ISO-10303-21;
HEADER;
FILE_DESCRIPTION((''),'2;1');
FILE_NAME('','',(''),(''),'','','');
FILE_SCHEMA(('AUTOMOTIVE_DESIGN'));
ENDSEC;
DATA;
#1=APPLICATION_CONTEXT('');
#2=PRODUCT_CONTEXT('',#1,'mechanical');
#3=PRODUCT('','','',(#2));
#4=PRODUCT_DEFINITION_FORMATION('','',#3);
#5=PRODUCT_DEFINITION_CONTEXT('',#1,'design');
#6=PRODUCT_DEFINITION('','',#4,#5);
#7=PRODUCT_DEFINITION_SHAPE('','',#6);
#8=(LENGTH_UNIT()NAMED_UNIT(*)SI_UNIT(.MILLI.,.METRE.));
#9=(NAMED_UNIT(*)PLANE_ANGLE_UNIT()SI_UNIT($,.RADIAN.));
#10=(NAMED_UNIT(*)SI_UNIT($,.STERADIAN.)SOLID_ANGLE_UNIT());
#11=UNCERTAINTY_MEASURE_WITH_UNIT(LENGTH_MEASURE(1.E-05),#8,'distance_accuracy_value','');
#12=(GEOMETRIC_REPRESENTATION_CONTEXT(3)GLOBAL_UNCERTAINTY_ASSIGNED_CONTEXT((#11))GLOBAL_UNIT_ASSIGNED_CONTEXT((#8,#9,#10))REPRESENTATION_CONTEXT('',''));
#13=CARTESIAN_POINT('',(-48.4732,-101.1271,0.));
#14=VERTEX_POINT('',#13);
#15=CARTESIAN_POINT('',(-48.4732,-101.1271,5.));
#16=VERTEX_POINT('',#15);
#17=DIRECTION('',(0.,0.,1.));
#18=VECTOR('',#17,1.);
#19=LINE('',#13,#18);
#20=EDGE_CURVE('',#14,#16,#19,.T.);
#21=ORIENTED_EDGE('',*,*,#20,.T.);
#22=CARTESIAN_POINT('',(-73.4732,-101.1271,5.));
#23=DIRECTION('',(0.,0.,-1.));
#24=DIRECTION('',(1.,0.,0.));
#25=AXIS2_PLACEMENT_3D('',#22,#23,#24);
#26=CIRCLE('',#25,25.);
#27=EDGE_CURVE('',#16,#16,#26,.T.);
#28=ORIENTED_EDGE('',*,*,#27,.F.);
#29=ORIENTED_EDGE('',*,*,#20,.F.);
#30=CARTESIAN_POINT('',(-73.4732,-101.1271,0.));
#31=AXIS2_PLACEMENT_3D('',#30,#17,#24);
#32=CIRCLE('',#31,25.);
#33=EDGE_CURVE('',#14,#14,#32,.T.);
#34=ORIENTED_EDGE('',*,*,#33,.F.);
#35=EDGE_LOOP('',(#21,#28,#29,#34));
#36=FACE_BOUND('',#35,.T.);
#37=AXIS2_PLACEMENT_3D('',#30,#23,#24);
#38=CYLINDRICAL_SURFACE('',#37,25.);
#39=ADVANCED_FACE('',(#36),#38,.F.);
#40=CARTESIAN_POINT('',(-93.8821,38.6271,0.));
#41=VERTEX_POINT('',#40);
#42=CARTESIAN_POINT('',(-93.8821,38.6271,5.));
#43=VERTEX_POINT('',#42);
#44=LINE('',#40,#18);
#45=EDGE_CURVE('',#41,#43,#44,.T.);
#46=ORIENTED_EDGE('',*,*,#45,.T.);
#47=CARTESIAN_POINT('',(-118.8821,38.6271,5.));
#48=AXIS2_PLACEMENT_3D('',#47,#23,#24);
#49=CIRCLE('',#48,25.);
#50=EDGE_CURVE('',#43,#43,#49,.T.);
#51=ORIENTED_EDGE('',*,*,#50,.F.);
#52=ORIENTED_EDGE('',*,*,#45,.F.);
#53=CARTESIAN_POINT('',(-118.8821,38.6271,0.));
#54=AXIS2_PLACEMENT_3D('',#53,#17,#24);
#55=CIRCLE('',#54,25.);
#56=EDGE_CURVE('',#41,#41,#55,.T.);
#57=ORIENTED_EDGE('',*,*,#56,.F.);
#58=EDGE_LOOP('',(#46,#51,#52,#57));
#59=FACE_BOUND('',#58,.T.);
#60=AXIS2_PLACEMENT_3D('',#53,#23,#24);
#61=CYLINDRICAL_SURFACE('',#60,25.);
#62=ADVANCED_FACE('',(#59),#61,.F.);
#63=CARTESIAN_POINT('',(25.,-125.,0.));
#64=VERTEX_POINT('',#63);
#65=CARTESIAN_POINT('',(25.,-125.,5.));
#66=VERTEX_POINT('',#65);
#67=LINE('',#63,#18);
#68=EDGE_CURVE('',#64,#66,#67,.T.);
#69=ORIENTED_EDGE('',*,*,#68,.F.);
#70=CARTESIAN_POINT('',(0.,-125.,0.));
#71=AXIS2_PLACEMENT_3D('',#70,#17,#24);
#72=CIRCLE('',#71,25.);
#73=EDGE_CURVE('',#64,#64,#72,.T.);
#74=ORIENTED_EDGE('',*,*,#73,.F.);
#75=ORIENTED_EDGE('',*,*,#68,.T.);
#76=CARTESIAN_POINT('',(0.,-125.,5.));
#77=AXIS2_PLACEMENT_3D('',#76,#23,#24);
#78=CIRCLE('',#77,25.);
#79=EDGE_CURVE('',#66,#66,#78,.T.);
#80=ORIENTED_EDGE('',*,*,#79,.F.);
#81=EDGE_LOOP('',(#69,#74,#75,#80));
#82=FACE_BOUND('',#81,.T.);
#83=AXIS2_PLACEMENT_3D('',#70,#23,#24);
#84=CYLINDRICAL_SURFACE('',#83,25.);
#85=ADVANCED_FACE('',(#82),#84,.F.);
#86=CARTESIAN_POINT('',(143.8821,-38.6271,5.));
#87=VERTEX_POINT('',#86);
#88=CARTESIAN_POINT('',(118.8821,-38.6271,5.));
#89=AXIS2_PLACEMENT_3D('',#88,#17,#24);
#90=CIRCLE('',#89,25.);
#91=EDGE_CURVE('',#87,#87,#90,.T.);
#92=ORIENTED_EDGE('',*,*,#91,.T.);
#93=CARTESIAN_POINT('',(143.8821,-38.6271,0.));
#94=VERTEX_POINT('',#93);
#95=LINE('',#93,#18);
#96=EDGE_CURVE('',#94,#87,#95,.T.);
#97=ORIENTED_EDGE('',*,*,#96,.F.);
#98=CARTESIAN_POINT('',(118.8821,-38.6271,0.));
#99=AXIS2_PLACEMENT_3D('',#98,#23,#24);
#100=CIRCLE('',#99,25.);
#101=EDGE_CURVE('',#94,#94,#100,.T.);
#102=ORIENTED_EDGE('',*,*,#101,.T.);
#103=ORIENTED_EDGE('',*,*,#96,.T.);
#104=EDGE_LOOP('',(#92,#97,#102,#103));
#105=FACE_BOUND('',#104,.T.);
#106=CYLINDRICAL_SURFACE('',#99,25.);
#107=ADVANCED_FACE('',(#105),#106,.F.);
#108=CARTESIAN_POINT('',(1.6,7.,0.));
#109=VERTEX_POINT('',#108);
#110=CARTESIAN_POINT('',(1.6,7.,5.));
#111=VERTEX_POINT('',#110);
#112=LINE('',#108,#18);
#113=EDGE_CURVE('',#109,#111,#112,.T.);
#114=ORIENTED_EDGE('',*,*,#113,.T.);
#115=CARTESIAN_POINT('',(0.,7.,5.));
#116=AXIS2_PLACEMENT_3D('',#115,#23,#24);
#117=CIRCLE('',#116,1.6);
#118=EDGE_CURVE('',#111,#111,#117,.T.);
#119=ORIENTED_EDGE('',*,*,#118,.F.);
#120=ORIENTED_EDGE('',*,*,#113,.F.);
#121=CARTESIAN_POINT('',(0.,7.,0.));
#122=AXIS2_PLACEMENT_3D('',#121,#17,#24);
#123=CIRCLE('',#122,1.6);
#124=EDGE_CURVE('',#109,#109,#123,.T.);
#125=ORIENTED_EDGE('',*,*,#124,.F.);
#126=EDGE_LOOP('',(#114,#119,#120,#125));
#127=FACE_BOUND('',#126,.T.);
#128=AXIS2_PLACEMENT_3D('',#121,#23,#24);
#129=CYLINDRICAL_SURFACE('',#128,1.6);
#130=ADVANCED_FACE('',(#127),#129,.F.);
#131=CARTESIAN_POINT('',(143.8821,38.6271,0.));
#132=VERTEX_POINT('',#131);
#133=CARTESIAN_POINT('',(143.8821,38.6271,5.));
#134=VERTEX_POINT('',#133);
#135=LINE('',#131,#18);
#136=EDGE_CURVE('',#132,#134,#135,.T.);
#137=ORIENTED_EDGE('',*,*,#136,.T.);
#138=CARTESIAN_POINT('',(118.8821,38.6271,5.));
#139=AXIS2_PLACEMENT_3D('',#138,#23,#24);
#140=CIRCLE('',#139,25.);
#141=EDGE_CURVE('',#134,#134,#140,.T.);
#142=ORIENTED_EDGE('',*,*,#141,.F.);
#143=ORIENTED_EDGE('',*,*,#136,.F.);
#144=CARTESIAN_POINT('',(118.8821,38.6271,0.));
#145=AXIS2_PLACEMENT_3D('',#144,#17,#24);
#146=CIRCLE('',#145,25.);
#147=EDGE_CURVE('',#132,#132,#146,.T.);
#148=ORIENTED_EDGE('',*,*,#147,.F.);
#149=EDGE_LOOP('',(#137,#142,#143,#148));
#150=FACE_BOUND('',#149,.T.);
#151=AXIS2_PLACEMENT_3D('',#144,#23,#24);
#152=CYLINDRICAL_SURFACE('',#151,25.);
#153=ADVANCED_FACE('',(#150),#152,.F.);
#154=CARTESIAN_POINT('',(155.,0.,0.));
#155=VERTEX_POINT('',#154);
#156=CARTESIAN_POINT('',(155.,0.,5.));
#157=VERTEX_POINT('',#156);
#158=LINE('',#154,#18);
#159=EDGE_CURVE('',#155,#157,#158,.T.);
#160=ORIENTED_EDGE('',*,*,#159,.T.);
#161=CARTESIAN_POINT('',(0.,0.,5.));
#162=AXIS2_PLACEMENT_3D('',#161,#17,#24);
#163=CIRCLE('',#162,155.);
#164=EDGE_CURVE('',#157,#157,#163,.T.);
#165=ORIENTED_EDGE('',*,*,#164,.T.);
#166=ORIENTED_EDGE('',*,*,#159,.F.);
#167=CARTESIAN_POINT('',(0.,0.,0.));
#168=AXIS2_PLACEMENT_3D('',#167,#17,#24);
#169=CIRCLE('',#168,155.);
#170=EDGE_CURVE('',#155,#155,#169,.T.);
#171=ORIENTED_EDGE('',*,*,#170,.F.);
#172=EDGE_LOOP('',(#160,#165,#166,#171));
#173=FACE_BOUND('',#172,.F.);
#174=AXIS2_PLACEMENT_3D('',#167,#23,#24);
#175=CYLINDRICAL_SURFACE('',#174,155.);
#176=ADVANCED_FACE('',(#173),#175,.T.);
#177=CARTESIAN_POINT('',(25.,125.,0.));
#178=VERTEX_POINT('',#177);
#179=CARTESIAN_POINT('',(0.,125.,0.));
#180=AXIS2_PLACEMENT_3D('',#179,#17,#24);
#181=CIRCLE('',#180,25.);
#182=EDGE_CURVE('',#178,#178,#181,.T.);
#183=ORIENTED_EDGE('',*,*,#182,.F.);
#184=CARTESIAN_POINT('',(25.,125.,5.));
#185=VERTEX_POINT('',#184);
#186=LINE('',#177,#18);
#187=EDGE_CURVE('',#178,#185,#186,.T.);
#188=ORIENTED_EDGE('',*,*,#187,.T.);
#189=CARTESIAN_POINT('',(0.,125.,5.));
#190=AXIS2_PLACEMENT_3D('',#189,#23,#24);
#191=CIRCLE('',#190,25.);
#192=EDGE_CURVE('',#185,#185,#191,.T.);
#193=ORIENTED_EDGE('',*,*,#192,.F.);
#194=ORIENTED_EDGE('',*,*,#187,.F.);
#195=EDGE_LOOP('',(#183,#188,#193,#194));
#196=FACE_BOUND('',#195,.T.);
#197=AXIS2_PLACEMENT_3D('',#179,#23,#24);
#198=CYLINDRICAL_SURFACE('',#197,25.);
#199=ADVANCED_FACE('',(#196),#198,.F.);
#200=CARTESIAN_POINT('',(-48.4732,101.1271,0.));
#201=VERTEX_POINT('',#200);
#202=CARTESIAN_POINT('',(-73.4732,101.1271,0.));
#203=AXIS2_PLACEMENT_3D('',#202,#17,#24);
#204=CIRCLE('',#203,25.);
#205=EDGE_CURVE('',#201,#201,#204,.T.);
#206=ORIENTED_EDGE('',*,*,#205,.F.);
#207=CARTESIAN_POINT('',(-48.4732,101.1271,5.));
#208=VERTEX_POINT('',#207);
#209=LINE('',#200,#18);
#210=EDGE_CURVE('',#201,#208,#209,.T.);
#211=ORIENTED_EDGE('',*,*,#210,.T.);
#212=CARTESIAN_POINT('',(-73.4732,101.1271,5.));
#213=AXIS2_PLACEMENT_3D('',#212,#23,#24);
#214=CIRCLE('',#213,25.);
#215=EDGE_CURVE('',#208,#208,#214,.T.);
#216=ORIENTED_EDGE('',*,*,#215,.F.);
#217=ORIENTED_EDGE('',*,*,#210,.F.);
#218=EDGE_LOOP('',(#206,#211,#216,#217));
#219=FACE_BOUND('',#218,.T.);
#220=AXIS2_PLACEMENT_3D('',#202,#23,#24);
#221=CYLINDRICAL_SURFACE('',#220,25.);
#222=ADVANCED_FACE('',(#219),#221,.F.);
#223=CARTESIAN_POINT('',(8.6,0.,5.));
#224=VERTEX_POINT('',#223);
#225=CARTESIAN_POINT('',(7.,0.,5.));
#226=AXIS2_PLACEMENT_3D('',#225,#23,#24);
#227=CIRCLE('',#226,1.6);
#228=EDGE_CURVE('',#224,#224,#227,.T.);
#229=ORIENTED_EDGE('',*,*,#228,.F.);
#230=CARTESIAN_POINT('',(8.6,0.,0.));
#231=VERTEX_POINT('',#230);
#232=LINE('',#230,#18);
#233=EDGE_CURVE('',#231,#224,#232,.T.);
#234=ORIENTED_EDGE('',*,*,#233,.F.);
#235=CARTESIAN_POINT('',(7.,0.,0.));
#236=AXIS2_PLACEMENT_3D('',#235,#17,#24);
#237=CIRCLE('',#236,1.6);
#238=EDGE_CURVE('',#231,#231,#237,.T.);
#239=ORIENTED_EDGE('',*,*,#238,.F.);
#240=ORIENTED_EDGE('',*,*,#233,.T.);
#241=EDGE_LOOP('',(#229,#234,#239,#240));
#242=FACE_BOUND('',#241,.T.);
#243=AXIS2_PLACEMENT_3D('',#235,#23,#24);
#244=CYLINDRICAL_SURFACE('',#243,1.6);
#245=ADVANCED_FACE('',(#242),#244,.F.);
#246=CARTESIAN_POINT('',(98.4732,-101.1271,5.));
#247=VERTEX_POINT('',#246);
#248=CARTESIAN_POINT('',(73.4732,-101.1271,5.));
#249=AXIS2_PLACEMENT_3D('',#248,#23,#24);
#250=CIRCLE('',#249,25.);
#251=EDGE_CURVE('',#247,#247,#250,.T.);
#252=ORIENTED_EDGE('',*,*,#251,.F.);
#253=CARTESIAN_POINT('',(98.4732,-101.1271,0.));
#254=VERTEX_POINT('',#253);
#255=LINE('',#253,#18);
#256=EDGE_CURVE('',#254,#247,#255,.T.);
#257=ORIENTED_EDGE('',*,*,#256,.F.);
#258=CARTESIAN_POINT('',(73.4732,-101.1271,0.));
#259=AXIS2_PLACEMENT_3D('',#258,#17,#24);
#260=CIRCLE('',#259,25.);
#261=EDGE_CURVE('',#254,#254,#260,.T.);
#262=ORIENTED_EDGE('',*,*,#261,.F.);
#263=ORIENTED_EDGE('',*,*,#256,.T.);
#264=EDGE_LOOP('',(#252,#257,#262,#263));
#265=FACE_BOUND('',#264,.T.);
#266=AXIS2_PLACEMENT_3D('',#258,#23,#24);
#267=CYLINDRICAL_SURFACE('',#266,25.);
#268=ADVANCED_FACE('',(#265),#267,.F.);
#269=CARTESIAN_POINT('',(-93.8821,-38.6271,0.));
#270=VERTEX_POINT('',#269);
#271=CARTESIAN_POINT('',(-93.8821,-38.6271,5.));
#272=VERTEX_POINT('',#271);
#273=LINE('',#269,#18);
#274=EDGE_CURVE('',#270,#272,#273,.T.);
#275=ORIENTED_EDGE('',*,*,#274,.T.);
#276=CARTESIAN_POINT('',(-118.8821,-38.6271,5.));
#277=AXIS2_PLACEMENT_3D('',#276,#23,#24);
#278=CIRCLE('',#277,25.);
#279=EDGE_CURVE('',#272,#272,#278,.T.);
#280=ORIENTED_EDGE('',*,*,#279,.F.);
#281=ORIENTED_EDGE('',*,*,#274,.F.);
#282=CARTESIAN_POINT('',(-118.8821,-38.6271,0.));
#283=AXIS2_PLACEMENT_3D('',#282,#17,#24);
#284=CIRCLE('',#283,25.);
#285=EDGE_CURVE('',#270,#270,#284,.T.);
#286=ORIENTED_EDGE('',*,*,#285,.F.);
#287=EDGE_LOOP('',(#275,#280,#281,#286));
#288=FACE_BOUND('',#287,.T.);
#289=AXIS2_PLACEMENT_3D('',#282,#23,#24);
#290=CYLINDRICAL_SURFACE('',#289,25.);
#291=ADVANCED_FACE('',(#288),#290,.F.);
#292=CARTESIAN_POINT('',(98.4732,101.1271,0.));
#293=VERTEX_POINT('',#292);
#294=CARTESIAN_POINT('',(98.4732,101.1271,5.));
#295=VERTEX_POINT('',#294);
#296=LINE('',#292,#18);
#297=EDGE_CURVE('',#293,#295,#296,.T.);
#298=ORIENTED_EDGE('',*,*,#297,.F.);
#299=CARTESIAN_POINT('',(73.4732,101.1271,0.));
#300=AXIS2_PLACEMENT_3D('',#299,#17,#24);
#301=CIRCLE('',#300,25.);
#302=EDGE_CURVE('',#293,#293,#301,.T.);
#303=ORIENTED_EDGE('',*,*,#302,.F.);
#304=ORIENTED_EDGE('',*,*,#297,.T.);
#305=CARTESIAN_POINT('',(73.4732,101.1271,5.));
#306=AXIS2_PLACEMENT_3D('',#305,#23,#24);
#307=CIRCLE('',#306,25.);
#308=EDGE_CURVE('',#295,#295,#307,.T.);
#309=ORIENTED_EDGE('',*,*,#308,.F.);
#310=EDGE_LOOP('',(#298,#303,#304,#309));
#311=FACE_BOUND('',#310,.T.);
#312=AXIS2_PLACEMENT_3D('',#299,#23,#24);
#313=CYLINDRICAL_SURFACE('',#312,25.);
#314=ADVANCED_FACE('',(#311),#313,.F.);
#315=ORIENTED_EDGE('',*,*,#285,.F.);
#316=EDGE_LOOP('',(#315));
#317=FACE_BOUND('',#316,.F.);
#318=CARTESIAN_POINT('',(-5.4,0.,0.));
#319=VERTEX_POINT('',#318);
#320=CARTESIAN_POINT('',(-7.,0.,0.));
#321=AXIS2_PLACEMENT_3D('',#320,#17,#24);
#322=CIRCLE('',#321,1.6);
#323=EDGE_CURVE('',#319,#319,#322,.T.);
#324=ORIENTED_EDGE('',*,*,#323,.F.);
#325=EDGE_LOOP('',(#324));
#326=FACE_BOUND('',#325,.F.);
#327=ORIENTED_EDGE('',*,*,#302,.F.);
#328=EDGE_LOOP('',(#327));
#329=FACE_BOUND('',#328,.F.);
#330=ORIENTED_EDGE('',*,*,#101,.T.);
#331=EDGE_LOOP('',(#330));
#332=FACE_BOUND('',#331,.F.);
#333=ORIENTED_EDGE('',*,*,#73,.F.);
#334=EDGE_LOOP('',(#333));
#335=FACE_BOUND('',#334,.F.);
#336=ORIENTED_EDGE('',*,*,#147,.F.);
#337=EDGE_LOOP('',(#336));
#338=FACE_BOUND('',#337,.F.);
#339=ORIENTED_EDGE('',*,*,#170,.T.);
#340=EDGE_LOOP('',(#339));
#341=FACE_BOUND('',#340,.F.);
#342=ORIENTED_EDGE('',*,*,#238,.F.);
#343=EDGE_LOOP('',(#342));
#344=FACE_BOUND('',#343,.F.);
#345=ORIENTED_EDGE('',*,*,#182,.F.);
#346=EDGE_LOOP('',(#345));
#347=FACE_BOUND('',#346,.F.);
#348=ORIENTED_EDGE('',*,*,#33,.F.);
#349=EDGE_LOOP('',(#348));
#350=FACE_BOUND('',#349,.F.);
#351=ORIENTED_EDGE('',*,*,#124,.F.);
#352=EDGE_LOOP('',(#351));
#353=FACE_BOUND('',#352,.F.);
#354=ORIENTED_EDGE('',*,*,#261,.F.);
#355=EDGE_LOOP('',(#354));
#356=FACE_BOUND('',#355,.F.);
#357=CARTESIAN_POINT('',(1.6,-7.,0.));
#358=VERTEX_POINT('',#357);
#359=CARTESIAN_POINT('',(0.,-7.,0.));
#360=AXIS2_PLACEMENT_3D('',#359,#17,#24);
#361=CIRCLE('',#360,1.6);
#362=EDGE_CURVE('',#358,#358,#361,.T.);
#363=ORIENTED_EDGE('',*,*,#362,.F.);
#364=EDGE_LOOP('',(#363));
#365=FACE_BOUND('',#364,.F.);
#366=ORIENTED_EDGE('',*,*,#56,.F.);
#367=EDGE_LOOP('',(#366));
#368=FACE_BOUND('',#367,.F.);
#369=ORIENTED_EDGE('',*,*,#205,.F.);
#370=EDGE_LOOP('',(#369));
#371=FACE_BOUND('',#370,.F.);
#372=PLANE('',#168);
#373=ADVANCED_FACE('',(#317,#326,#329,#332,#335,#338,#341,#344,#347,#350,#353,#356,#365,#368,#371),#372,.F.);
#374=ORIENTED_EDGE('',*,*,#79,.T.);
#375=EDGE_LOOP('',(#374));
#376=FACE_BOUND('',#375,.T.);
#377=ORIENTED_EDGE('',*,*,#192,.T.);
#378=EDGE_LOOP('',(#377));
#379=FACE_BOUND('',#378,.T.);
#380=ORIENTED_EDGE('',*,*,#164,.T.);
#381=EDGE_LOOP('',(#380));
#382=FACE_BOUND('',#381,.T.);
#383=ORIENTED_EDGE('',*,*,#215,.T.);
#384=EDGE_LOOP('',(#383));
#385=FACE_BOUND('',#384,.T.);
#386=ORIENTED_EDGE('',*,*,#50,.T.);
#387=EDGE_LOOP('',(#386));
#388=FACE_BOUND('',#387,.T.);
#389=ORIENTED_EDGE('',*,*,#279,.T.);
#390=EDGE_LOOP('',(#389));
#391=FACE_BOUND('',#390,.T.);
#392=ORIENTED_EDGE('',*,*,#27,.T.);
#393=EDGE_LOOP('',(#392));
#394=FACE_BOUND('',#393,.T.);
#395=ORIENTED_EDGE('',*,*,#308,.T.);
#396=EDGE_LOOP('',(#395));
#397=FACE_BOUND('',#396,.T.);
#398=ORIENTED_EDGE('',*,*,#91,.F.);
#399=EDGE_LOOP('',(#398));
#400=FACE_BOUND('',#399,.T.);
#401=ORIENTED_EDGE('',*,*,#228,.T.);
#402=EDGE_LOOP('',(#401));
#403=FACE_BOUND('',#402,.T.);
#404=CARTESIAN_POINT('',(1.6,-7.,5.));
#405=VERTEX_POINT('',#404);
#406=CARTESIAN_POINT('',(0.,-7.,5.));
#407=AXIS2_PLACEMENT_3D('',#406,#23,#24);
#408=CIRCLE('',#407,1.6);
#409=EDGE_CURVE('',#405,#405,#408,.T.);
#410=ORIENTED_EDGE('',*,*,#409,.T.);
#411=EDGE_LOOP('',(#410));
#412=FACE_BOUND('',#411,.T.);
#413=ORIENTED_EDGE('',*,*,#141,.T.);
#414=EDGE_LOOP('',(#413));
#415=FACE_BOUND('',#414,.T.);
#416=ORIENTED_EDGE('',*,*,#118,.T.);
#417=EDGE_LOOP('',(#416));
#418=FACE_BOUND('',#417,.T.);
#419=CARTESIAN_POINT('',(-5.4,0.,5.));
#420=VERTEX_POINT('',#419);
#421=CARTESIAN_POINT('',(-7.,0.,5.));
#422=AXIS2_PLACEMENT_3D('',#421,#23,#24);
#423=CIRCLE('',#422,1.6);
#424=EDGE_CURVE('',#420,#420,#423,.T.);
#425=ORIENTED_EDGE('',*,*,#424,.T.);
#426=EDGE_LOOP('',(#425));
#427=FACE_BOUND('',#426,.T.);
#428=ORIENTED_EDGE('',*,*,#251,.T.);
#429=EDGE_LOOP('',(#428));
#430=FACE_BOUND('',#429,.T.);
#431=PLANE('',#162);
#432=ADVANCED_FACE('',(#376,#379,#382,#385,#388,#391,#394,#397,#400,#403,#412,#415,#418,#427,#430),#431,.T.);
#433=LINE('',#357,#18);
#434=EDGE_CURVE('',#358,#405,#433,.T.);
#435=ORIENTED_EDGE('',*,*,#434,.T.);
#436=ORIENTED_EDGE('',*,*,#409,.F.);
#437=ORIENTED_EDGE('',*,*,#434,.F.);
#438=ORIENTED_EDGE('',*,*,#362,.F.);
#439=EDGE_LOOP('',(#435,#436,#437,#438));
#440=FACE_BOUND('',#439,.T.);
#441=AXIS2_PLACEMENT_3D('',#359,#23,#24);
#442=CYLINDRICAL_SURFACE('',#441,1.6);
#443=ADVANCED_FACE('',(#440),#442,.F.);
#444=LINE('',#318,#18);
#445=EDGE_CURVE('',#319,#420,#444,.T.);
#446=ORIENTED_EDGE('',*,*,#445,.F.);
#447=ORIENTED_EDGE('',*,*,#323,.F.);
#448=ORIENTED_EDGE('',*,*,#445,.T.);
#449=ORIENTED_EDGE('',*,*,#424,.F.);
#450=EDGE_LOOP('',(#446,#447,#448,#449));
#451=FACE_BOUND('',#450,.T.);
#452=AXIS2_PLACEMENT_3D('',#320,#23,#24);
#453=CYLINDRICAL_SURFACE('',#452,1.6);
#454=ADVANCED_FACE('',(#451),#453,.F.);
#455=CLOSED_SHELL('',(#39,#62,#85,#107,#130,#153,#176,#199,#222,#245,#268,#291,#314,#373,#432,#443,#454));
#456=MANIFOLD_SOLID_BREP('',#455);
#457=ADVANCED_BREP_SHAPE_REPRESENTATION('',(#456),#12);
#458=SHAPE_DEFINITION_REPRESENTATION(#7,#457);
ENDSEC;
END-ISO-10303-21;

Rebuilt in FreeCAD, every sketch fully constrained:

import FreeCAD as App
import Part
import Sketcher
Q = App.Units.Quantity

doc = App.newDocument("Part")
params = doc.addObject("Spreadsheet::Sheet", "Params")
for row, (alias, value) in enumerate([
    ("sketch1_diameter", "310 mm"),
    ("sketch1_diameter2", "50 mm"),
    ("pad1_length", "5 mm"),
    ("sketch2_diameter", "3.2 mm"),
    ("pocket1_length", "5 mm"),
], start=1):
    params.set(f"A{row}", alias)
    params.set(f"B{row}", "=" + value)
    params.setAlias(f"B{row}", alias)

body = doc.addObject("PartDesign::Body", "Body")

sketch1 = body.newObject("Sketcher::SketchObject", "Sketch")
sketch1.AttachmentSupport = (doc.getObject("XY_Plane"), [""])
sketch1.MapMode = "FlatFace"
sketch1.addGeometry(Part.Circle(App.Vector(0, 0, 0), App.Vector(0, 0, 1), 155), False)
sketch1.addGeometry(Part.Circle(App.Vector(119, -39, 0), App.Vector(0, 0, 1), 25), False)
sketch1.addGeometry(Part.Circle(App.Vector(119, 39, 0), App.Vector(0, 0, 1), 25), False)
sketch1.addGeometry(Part.Circle(App.Vector(73, -101, 0), App.Vector(0, 0, 1), 25), False)
sketch1.addGeometry(Part.Circle(App.Vector(73, 101, 0), App.Vector(0, 0, 1), 25), False)
sketch1.addGeometry(Part.Circle(App.Vector(0, 125, 0), App.Vector(0, 0, 1), 25), False)
sketch1.addGeometry(Part.Circle(App.Vector(-73, 101, 0), App.Vector(0, 0, 1), 25), False)
sketch1.addGeometry(Part.Circle(App.Vector(-119, 39, 0), App.Vector(0, 0, 1), 25), False)
sketch1.addGeometry(Part.Circle(App.Vector(-119, -39, 0), App.Vector(0, 0, 1), 25), False)
sketch1.addGeometry(Part.Circle(App.Vector(-73, -101, 0), App.Vector(0, 0, 1), 25), False)
sketch1.addGeometry(Part.Circle(App.Vector(0, -125, 0), App.Vector(0, 0, 1), 25), False)
sketch1.addConstraint(Sketcher.Constraint("Coincident", 0, 3, -1, 1))
sketch1.addConstraint(Sketcher.Constraint("Equal", 1, 2))
sketch1.addConstraint(Sketcher.Constraint("Equal", 2, 3))
sketch1.addConstraint(Sketcher.Constraint("Equal", 3, 4))
sketch1.addConstraint(Sketcher.Constraint("Equal", 4, 5))
sketch1.addConstraint(Sketcher.Constraint("Equal", 5, 6))
sketch1.addConstraint(Sketcher.Constraint("Equal", 6, 7))
sketch1.addConstraint(Sketcher.Constraint("Equal", 7, 8))
sketch1.addConstraint(Sketcher.Constraint("Equal", 8, 9))
sketch1.addConstraint(Sketcher.Constraint("Equal", 9, 10))
sketch1.addConstraint(Sketcher.Constraint("Symmetric", 3, 3, 6, 3, -1, 1))
sketch1.addConstraint(Sketcher.Constraint("Symmetric", 1, 3, 7, 3, -1, 1))
sketch1.addConstraint(Sketcher.Constraint("Symmetric", 2, 3, 8, 3, -1, 1))
sketch1.addConstraint(Sketcher.Constraint("Symmetric", 4, 3, 9, 3, -1, 1))
sketch1.addConstraint(Sketcher.Constraint("Symmetric", 5, 3, 10, 3, -1, 1))
sketch1.addConstraint(Sketcher.Constraint("Symmetric", 4, 3, 6, 3, -2))
sketch1.addConstraint(Sketcher.Constraint("Symmetric", 2, 3, 7, 3, -2))
sketch1.addConstraint(Sketcher.Constraint("PointOnObject", 5, 3, -2))
sketch1.addConstraint(Sketcher.Constraint("Diameter", 0, Q("310 mm")))
sketch1.addConstraint(Sketcher.Constraint("Diameter", 1, Q("50 mm")))
sketch1.addConstraint(Sketcher.Constraint("DistanceY", -1, 1, 5, 3, Q("125 mm")))
sketch1.addConstraint(Sketcher.Constraint("DistanceY", 3, 3, 1, 3, Q("62.5 mm")))
sketch1.addConstraint(Sketcher.Constraint("DistanceX", -1, 1, 1, 3, Q("118.882 mm")))
sketch1.addConstraint(Sketcher.Constraint("DistanceY", 1, 3, -1, 1, Q("38.627 mm")))
sketch1.addConstraint(Sketcher.Constraint("DistanceX", 3, 3, 1, 3, Q("45.409 mm")))
sketch1.setExpression("Constraints[18]", "Params.sketch1_diameter")
sketch1.setExpression("Constraints[19]", "Params.sketch1_diameter2")
pad1 = body.newObject("PartDesign::Pad", "Pad")
pad1.Profile = sketch1
pad1.setExpression("Length", "Params.pad1_length")

sketch2 = body.newObject("Sketcher::SketchObject", "Sketch001")
sketch2.AttachmentSupport = (doc.getObject("XY_Plane"), [""])
sketch2.MapMode = "FlatFace"
sketch2.addGeometry(Part.Circle(App.Vector(7, 0, 0), App.Vector(0, 0, 1), 1.6), False)
sketch2.addGeometry(Part.Circle(App.Vector(0, 7, 0), App.Vector(0, 0, 1), 1.6), False)
sketch2.addGeometry(Part.Circle(App.Vector(0, -7, 0), App.Vector(0, 0, 1), 1.6), False)
sketch2.addGeometry(Part.Circle(App.Vector(-7, 0, 0), App.Vector(0, 0, 1), 1.6), False)
sketch2.addConstraint(Sketcher.Constraint("Equal", 0, 1))
sketch2.addConstraint(Sketcher.Constraint("Equal", 1, 2))
sketch2.addConstraint(Sketcher.Constraint("Equal", 2, 3))
sketch2.addConstraint(Sketcher.Constraint("Symmetric", 1, 3, 2, 3, -1, 1))
sketch2.addConstraint(Sketcher.Constraint("Symmetric", 0, 3, 3, 3, -1, 1))
sketch2.addConstraint(Sketcher.Constraint("PointOnObject", 0, 3, -1))
sketch2.addConstraint(Sketcher.Constraint("PointOnObject", 1, 3, -2))
sketch2.addConstraint(Sketcher.Constraint("Diameter", 0, Q("3.2 mm")))
sketch2.addConstraint(Sketcher.Constraint("DistanceY", 2, 3, 1, 3, Q("14 mm")))
sketch2.addConstraint(Sketcher.Constraint("DistanceX", 3, 3, 0, 3, Q("14 mm")))
sketch2.setExpression("Constraints[7]", "Params.sketch2_diameter")
pocket1 = body.newObject("PartDesign::Pocket", "Pocket")
pocket1.Profile = sketch2
pocket1.setExpression("Length", "Params.pocket1_length")
pocket1.Reversed = True

doc.recompute()
